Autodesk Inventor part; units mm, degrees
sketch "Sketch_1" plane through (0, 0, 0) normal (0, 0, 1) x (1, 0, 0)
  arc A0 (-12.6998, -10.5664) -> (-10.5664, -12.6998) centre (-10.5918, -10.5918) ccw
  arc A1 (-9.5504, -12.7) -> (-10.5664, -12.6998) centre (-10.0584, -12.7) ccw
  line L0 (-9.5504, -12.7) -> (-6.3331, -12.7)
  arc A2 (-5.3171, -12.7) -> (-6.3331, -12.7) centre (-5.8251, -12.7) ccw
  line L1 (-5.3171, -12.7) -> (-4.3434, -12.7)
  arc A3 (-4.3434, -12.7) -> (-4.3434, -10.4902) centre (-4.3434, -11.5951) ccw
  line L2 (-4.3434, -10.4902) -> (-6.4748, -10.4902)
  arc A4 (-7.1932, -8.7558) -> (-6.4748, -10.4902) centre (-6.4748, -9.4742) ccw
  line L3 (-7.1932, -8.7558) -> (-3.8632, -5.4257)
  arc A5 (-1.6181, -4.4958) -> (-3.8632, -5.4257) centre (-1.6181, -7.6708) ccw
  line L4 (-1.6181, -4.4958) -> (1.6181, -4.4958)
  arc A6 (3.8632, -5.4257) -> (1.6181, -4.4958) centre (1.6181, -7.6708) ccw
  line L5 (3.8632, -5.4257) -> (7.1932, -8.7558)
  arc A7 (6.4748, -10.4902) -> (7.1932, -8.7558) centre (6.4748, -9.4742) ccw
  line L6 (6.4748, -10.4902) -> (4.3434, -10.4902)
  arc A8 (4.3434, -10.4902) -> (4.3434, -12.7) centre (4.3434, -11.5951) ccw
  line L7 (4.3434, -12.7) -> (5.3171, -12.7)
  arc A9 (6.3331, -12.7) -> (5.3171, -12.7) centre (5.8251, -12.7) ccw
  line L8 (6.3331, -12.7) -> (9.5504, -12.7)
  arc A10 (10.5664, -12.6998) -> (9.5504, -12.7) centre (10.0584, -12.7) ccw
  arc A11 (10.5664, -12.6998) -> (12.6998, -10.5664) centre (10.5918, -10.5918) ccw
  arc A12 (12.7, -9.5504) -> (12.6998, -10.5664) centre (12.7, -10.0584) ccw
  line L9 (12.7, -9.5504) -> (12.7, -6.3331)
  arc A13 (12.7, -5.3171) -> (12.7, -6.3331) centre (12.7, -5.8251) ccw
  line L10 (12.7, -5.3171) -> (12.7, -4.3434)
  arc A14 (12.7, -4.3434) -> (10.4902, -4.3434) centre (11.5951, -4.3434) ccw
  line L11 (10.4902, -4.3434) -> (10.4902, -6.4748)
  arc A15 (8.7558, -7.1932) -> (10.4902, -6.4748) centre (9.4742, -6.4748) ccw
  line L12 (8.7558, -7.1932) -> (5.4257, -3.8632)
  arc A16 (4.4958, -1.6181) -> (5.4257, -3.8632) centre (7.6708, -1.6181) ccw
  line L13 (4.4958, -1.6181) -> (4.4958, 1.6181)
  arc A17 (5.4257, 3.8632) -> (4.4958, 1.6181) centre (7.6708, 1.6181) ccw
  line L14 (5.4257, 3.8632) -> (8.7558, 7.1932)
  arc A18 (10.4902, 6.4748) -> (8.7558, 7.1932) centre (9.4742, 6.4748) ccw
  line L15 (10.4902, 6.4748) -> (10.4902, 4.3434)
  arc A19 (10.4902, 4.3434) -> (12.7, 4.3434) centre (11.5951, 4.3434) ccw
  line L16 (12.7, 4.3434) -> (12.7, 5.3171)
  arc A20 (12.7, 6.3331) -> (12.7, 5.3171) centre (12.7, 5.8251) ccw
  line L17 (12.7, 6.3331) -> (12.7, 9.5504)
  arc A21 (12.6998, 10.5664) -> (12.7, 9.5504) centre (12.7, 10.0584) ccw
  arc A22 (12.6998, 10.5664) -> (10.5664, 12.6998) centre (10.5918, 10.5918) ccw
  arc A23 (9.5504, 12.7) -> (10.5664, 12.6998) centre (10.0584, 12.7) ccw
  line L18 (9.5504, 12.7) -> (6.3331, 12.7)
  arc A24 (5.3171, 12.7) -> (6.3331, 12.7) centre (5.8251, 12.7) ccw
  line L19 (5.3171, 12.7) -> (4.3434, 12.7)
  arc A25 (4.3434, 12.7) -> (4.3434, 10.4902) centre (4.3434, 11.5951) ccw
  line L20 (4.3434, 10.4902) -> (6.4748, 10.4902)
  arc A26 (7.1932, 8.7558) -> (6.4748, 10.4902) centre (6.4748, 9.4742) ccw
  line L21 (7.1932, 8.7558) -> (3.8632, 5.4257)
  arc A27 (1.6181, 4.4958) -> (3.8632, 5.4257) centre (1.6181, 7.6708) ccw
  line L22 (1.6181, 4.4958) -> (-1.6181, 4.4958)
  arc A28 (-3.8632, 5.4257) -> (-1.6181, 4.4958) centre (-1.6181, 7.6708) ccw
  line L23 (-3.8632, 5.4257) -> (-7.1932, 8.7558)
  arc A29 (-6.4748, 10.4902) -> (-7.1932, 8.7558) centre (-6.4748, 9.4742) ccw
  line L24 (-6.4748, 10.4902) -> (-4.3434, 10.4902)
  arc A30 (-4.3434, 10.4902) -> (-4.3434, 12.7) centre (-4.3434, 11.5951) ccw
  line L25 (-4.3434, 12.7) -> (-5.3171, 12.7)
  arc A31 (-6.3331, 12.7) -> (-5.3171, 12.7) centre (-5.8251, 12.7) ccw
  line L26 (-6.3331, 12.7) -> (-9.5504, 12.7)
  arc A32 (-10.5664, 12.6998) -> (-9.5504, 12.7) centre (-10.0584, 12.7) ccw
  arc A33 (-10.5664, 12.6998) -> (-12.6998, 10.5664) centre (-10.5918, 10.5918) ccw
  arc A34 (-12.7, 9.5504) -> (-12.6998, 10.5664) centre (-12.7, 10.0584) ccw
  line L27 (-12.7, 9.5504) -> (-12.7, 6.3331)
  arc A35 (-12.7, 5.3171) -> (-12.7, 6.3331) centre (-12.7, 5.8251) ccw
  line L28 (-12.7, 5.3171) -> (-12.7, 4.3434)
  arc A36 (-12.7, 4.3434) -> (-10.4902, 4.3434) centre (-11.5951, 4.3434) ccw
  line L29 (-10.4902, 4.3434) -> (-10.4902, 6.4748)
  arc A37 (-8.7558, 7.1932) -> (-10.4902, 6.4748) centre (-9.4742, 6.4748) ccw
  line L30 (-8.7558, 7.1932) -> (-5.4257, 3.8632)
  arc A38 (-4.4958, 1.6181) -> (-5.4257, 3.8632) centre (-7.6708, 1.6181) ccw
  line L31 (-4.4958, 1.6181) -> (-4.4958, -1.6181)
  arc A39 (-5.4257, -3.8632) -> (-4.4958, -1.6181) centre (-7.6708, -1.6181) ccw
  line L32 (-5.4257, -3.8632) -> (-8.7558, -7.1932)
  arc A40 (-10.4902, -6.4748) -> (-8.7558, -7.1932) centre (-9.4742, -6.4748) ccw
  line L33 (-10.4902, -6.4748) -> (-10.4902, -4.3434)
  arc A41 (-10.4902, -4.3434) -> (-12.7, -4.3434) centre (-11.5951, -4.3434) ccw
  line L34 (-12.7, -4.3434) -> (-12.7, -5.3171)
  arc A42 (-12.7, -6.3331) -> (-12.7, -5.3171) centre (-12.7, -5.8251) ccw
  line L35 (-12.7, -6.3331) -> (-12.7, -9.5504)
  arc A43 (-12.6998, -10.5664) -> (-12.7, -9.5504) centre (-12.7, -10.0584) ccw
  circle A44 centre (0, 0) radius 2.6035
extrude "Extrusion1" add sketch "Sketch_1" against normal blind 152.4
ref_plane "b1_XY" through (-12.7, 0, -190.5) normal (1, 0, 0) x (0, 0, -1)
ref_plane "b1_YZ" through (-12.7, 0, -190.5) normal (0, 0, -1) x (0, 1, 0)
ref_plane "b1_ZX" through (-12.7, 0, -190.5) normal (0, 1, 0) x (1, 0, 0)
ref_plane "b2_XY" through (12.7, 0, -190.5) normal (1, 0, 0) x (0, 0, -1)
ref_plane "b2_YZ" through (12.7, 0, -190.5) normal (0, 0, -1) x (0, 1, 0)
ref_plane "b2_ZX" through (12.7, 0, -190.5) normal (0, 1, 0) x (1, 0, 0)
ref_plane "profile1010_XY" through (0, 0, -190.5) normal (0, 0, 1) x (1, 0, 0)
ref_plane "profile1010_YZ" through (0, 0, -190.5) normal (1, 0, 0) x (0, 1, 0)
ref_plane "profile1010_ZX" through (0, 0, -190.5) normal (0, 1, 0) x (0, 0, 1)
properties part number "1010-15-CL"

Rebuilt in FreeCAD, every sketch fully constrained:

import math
import FreeCAD as App
import Part
import Sketcher
Q = App.Units.Quantity

doc = App.newDocument("Part")
body = doc.addObject("PartDesign::Body", "Body")

# Sketch on XY plane
sketch1 = body.newObject("Sketcher::SketchObject", "Sketch")
sketch1.AttachmentSupport = (doc.getObject("XY_Plane"), [""])
sketch1.MapMode = "FlatFace"
sketch1.addGeometry([
    Part.ArcOfCircle(Part.Circle(App.Vector(-12.7, -10.1, 0), App.Vector(0, 0, 1), 0.5), math.radians(-90), math.radians(90)),  # 0
    Part.ArcOfCircle(Part.Circle(App.Vector(-10.6, -10.6, 0), App.Vector(0, 0, 1), 2.1), math.radians(179), math.radians(271)),  # 1
    Part.ArcOfCircle(Part.Circle(App.Vector(-10.1, -12.7, 0), App.Vector(0, 0, 1), 0.5), math.radians(0), math.radians(180)),  # 2
    Part.LineSegment(App.Vector(-9.6, -12.7, 0), App.Vector(-6.3, -12.7, 0)),  # 3
    Part.ArcOfCircle(Part.Circle(App.Vector(-5.8, -12.7, 0), App.Vector(0, 0, 1), 0.5), math.radians(0), math.radians(180)),  # 4
    Part.LineSegment(App.Vector(-5.3, -12.7, 0), App.Vector(-4.3, -12.7, 0)),  # 5
    Part.ArcOfCircle(Part.Circle(App.Vector(-4.3, -11.6, 0), App.Vector(0, 0, 1), 1.1), math.radians(-90), math.radians(90)),  # 6
    Part.LineSegment(App.Vector(-4.3, -10.5, 0), App.Vector(-6.5, -10.5, 0)),  # 7
    Part.ArcOfCircle(Part.Circle(App.Vector(-6.5, -9.5, 0), App.Vector(0, 0, 1), 1), math.radians(135), math.radians(270)),  # 8
    Part.LineSegment(App.Vector(-7.2, -8.8, 0), App.Vector(-3.9, -5.4, 0)),  # 9
    Part.ArcOfCircle(Part.Circle(App.Vector(-1.6, -7.7, 0), App.Vector(0, 0, 1), 3.2), math.radians(90), math.radians(135)),  # 10
    Part.LineSegment(App.Vector(-1.6, -4.5, 0), App.Vector(1.6, -4.5, 0)),  # 11
    Part.ArcOfCircle(Part.Circle(App.Vector(1.6, -7.7, 0), App.Vector(0, 0, 1), 3.2), math.radians(45), math.radians(90)),  # 12
    Part.LineSegment(App.Vector(3.9, -5.4, 0), App.Vector(7.2, -8.8, 0)),  # 13
    Part.ArcOfCircle(Part.Circle(App.Vector(6.5, -9.5, 0), App.Vector(0, 0, 1), 1), math.radians(-90), math.radians(45)),  # 14
    Part.LineSegment(App.Vector(6.5, -10.5, 0), App.Vector(4.3, -10.5, 0)),  # 15
    Part.ArcOfCircle(Part.Circle(App.Vector(4.3, -11.6, 0), App.Vector(0, 0, 1), 1.1), math.radians(90), math.radians(270)),  # 16
    Part.LineSegment(App.Vector(4.3, -12.7, 0), App.Vector(5.3, -12.7, 0)),  # 17
    Part.ArcOfCircle(Part.Circle(App.Vector(5.8, -12.7, 0), App.Vector(0, 0, 1), 0.5), math.radians(0), math.radians(180)),  # 18
    Part.LineSegment(App.Vector(6.3, -12.7, 0), App.Vector(9.6, -12.7, 0)),  # 19
    Part.ArcOfCircle(Part.Circle(App.Vector(10.1, -12.7, 0), App.Vector(0, 0, 1), 0.5), math.radians(0), math.radians(180)),  # 20
    Part.ArcOfCircle(Part.Circle(App.Vector(10.6, -10.6, 0), App.Vector(0, 0, 1), 2.1), math.radians(-91), math.radians(1)),  # 21
    Part.ArcOfCircle(Part.Circle(App.Vector(12.7, -10.1, 0), App.Vector(0, 0, 1), 0.5), math.radians(90), math.radians(270)),  # 22
    Part.LineSegment(App.Vector(12.7, -9.6, 0), App.Vector(12.7, -6.3, 0)),  # 23
    Part.ArcOfCircle(Part.Circle(App.Vector(12.7, -5.8, 0), App.Vector(0, 0, 1), 0.5), math.radians(90), math.radians(270)),  # 24
    Part.LineSegment(App.Vector(12.7, -5.3, 0), App.Vector(12.7, -4.3, 0)),  # 25
    Part.ArcOfCircle(Part.Circle(App.Vector(11.6, -4.3, 0), App.Vector(0, 0, 1), 1.1), math.radians(0), math.radians(180)),  # 26
    Part.LineSegment(App.Vector(10.5, -4.3, 0), App.Vector(10.5, -6.5, 0)),  # 27
    Part.ArcOfCircle(Part.Circle(App.Vector(9.5, -6.5, 0), App.Vector(0, 0, 1), 1), math.radians(-135), math.radians(0)),  # 28
    Part.LineSegment(App.Vector(8.8, -7.2, 0), App.Vector(5.4, -3.9, 0)),  # 29
    Part.ArcOfCircle(Part.Circle(App.Vector(7.7, -1.6, 0), App.Vector(0, 0, 1), 3.2), math.radians(180), math.radians(225)),  # 30
    Part.LineSegment(App.Vector(4.5, -1.6, 0), App.Vector(4.5, 1.6, 0)),  # 31
    Part.ArcOfCircle(Part.Circle(App.Vector(7.7, 1.6, 0), App.Vector(0, 0, 1), 3.2), math.radians(135), math.radians(180)),  # 32
    Part.LineSegment(App.Vector(5.4, 3.9, 0), App.Vector(8.8, 7.2, 0)),  # 33
    Part.ArcOfCircle(Part.Circle(App.Vector(9.5, 6.5, 0), App.Vector(0, 0, 1), 1), math.radians(0), math.radians(135)),  # 34
    Part.LineSegment(App.Vector(10.5, 6.5, 0), App.Vector(10.5, 4.3, 0)),  # 35
    Part.ArcOfCircle(Part.Circle(App.Vector(11.6, 4.3, 0), App.Vector(0, 0, 1), 1.1), math.radians(180), math.radians(360)),  # 36
    Part.LineSegment(App.Vector(12.7, 4.3, 0), App.Vector(12.7, 5.3, 0)),  # 37
    Part.ArcOfCircle(Part.Circle(App.Vector(12.7, 5.8, 0), App.Vector(0, 0, 1), 0.5), math.radians(90), math.radians(270)),  # 38
    Part.LineSegment(App.Vector(12.7, 6.3, 0), App.Vector(12.7, 9.6, 0)),  # 39
    Part.ArcOfCircle(Part.Circle(App.Vector(12.7, 10.1, 0), App.Vector(0, 0, 1), 0.5), math.radians(90), math.radians(270)),  # 40
    Part.ArcOfCircle(Part.Circle(App.Vector(10.6, 10.6, 0), App.Vector(0, 0, 1), 2.1), math.radians(-1), math.radians(91)),  # 41
    Part.ArcOfCircle(Part.Circle(App.Vector(10.1, 12.7, 0), App.Vector(0, 0, 1), 0.5), math.radians(180), math.radians(360)),  # 42
    Part.LineSegment(App.Vector(9.6, 12.7, 0), App.Vector(6.3, 12.7, 0)),  # 43
    Part.ArcOfCircle(Part.Circle(App.Vector(5.8, 12.7, 0), App.Vector(0, 0, 1), 0.5), math.radians(180), math.radians(360)),  # 44
    Part.LineSegment(App.Vector(5.3, 12.7, 0), App.Vector(4.3, 12.7, 0)),  # 45
    Part.ArcOfCircle(Part.Circle(App.Vector(4.3, 11.6, 0), App.Vector(0, 0, 1), 1.1), math.radians(90), math.radians(270)),  # 46
    Part.LineSegment(App.Vector(4.3, 10.5, 0), App.Vector(6.5, 10.5, 0)),  # 47
    Part.ArcOfCircle(Part.Circle(App.Vector(6.5, 9.5, 0), App.Vector(0, 0, 1), 1), math.radians(-45), math.radians(90)),  # 48
    Part.LineSegment(App.Vector(7.2, 8.8, 0), App.Vector(3.9, 5.4, 0)),  # 49
    Part.ArcOfCircle(Part.Circle(App.Vector(1.6, 7.7, 0), App.Vector(0, 0, 1), 3.2), math.radians(-90), math.radians(-45)),  # 50
    Part.LineSegment(App.Vector(1.6, 4.5, 0), App.Vector(-1.6, 4.5, 0)),  # 51
    Part.ArcOfCircle(Part.Circle(App.Vector(-1.6, 7.7, 0), App.Vector(0, 0, 1), 3.2), math.radians(-135), math.radians(-90)),  # 52
    Part.LineSegment(App.Vector(-3.9, 5.4, 0), App.Vector(-7.2, 8.8, 0)),  # 53
    Part.ArcOfCircle(Part.Circle(App.Vector(-6.5, 9.5, 0), App.Vector(0, 0, 1), 1), math.radians(90), math.radians(225)),  # 54
    Part.LineSegment(App.Vector(-6.5, 10.5, 0), App.Vector(-4.3, 10.5, 0)),  # 55
    Part.ArcOfCircle(Part.Circle(App.Vector(-4.3, 11.6, 0), App.Vector(0, 0, 1), 1.1), math.radians(-90), math.radians(90)),  # 56
    Part.LineSegment(App.Vector(-4.3, 12.7, 0), App.Vector(-5.3, 12.7, 0)),  # 57
    Part.ArcOfCircle(Part.Circle(App.Vector(-5.8, 12.7, 0), App.Vector(0, 0, 1), 0.5), math.radians(180), math.radians(360)),  # 58
    Part.LineSegment(App.Vector(-6.3, 12.7, 0), App.Vector(-9.6, 12.7, 0)),  # 59
    Part.ArcOfCircle(Part.Circle(App.Vector(-10.1, 12.7, 0), App.Vector(0, 0, 1), 0.5), math.radians(-180), math.radians(0)),  # 60
    Part.ArcOfCircle(Part.Circle(App.Vector(-10.6, 10.6, 0), App.Vector(0, 0, 1), 2.1), math.radians(89), math.radians(181)),  # 61
    Part.ArcOfCircle(Part.Circle(App.Vector(-12.7, 10.1, 0), App.Vector(0, 0, 1), 0.5), math.radians(-90), math.radians(90)),  # 62
    Part.LineSegment(App.Vector(-12.7, 9.6, 0), App.Vector(-12.7, 6.3, 0)),  # 63
    Part.ArcOfCircle(Part.Circle(App.Vector(-12.7, 5.8, 0), App.Vector(0, 0, 1), 0.5), math.radians(-90), math.radians(90)),  # 64
    Part.LineSegment(App.Vector(-12.7, 5.3, 0), App.Vector(-12.7, 4.3, 0)),  # 65
    Part.ArcOfCircle(Part.Circle(App.Vector(-11.6, 4.3, 0), App.Vector(0, 0, 1), 1.1), math.radians(180), math.radians(360)),  # 66
    Part.LineSegment(App.Vector(-10.5, 4.3, 0), App.Vector(-10.5, 6.5, 0)),  # 67
    Part.ArcOfCircle(Part.Circle(App.Vector(-9.5, 6.5, 0), App.Vector(0, 0, 1), 1), math.radians(45), math.radians(180)),  # 68
    Part.LineSegment(App.Vector(-8.8, 7.2, 0), App.Vector(-5.4, 3.9, 0)),  # 69
    Part.ArcOfCircle(Part.Circle(App.Vector(-7.7, 1.6, 0), App.Vector(0, 0, 1), 3.2), math.radians(0), math.radians(45)),  # 70
    Part.LineSegment(App.Vector(-4.5, 1.6, 0), App.Vector(-4.5, -1.6, 0)),  # 71
    Part.ArcOfCircle(Part.Circle(App.Vector(-7.7, -1.6, 0), App.Vector(0, 0, 1), 3.2), math.radians(-45), math.radians(0)),  # 72
    Part.LineSegment(App.Vector(-5.4, -3.9, 0), App.Vector(-8.8, -7.2, 0)),  # 73
    Part.ArcOfCircle(Part.Circle(App.Vector(-9.5, -6.5, 0), App.Vector(0, 0, 1), 1), math.radians(180), math.radians(315)),  # 74
    Part.LineSegment(App.Vector(-10.5, -6.5, 0), App.Vector(-10.5, -4.3, 0)),  # 75
    Part.ArcOfCircle(Part.Circle(App.Vector(-11.6, -4.3, 0), App.Vector(0, 0, 1), 1.1), math.radians(0), math.radians(180)),  # 76
    Part.LineSegment(App.Vector(-12.7, -4.3, 0), App.Vector(-12.7, -5.3, 0)),  # 77
    Part.ArcOfCircle(Part.Circle(App.Vector(-12.7, -5.8, 0), App.Vector(0, 0, 1), 0.5), math.radians(-90), math.radians(90)),  # 78
    Part.LineSegment(App.Vector(-12.7, -6.3, 0), App.Vector(-12.7, -9.6, 0)),  # 79
    Part.Circle(App.Vector(0, 0, 0), App.Vector(0, 0, 1), 2.6),  # 80
], False)
sketch1.addConstraint([
    Sketcher.Constraint("Coincident", 0, 1, 1, 1),
    Sketcher.Constraint("Coincident", 1, 2, 2, 2),
    Sketcher.Constraint("Coincident", 2, 1, 3, 1),
    Sketcher.Constraint("Coincident", 3, 2, 4, 2),
    Sketcher.Constraint("Coincident", 4, 1, 5, 1),
    Sketcher.Constraint("Tangent", 5, 2, 6, 1),
    Sketcher.Constraint("Tangent", 6, 2, 7, 1),
    Sketcher.Constraint("Tangent", 7, 2, 8, 2),
    Sketcher.Constraint("Tangent", 8, 1, 9, 1),
    Sketcher.Constraint("Tangent", 9, 2, 10, 2),
    Sketcher.Constraint("Tangent", 10, 1, 11, 1),
    Sketcher.Constraint("Tangent", 11, 2, 12, 2),
    Sketcher.Constraint("Tangent", 12, 1, 13, 1),
    Sketcher.Constraint("Tangent", 13, 2, 14, 2),
    Sketcher.Constraint("Tangent", 14, 1, 15, 1),
    Sketcher.Constraint("Tangent", 15, 2, 16, 1),
    Sketcher.Constraint("Tangent", 16, 2, 17, 1),
    Sketcher.Constraint("Coincident", 17, 2, 18, 2),
    Sketcher.Constraint("Coincident", 18, 1, 19, 1),
    Sketcher.Constraint("Coincident", 19, 2, 20, 2),
    Sketcher.Constraint("Coincident", 20, 1, 21, 1),
    Sketcher.Constraint("Coincident", 21, 2, 22, 2),
    Sketcher.Constraint("Coincident", 22, 1, 23, 1),
    Sketcher.Constraint("Coincident", 23, 2, 24, 2),
    Sketcher.Constraint("Coincident", 24, 1, 25, 1),
    Sketcher.Constraint("Tangent", 25, 2, 26, 1),
    Sketcher.Constraint("Tangent", 26, 2, 27, 1),
    Sketcher.Constraint("Tangent", 27, 2, 28, 2),
    Sketcher.Constraint("Tangent", 28, 1, 29, 1),
    Sketcher.Constraint("Tangent", 29, 2, 30, 2),
    Sketcher.Constraint("Tangent", 30, 1, 31, 1),
    Sketcher.Constraint("Tangent", 31, 2, 32, 2),
    Sketcher.Constraint("Tangent", 32, 1, 33, 1),
    Sketcher.Constraint("Tangent", 33, 2, 34, 2),
    Sketcher.Constraint("Tangent", 34, 1, 35, 1),
    Sketcher.Constraint("Tangent", 35, 2, 36, 1),
    Sketcher.Constraint("Tangent", 36, 2, 37, 1),
    Sketcher.Constraint("Coincident", 37, 2, 38, 2),
    Sketcher.Constraint("Coincident", 38, 1, 39, 1),
    Sketcher.Constraint("Coincident", 39, 2, 40, 2),
    Sketcher.Constraint("Coincident", 40, 1, 41, 1),
    Sketcher.Constraint("Coincident", 41, 2, 42, 2),
    Sketcher.Constraint("Coincident", 42, 1, 43, 1),
    Sketcher.Constraint("Coincident", 43, 2, 44, 2),
    Sketcher.Constraint("Coincident", 44, 1, 45, 1),
    Sketcher.Constraint("Tangent", 45, 2, 46, 1),
    Sketcher.Constraint("Tangent", 46, 2, 47, 1),
    Sketcher.Constraint("Tangent", 47, 2, 48, 2),
    Sketcher.Constraint("Tangent", 48, 1, 49, 1),
    Sketcher.Constraint("Tangent", 49, 2, 50, 2),
    Sketcher.Constraint("Tangent", 50, 1, 51, 1),
    Sketcher.Constraint("Tangent", 51, 2, 52, 2),
    Sketcher.Constraint("Tangent", 52, 1, 53, 1),
    Sketcher.Constraint("Tangent", 53, 2, 54, 2),
    Sketcher.Constraint("Tangent", 54, 1, 55, 1),
    Sketcher.Constraint("Tangent", 55, 2, 56, 1),
    Sketcher.Constraint("Tangent", 56, 2, 57, 1),
    Sketcher.Constraint("Coincident", 57, 2, 58, 2),
    Sketcher.Constraint("Coincident", 58, 1, 59, 1),
    Sketcher.Constraint("Coincident", 59, 2, 60, 2),
    Sketcher.Constraint("Coincident", 60, 1, 61, 1),
    Sketcher.Constraint("Coincident", 61, 2, 62, 2),
    Sketcher.Constraint("Coincident", 62, 1, 63, 1),
    Sketcher.Constraint("Coincident", 63, 2, 64, 2),
    Sketcher.Constraint("Coincident", 64, 1, 65, 1),
    Sketcher.Constraint("Tangent", 65, 2, 66, 1),
    Sketcher.Constraint("Tangent", 66, 2, 67, 1),
    Sketcher.Constraint("Tangent", 67, 2, 68, 2),
    Sketcher.Constraint("Tangent", 68, 1, 69, 1),
    Sketcher.Constraint("Tangent", 69, 2, 70, 2),
    Sketcher.Constraint("Tangent", 70, 1, 71, 1),
    Sketcher.Constraint("Tangent", 71, 2, 72, 2),
    Sketcher.Constraint("Tangent", 72, 1, 73, 1),
    Sketcher.Constraint("Tangent", 73, 2, 74, 2),
    Sketcher.Constraint("Tangent", 74, 1, 75, 1),
    Sketcher.Constraint("Tangent", 75, 2, 76, 1),
    Sketcher.Constraint("Tangent", 76, 2, 77, 1),
    Sketcher.Constraint("Coincident", 77, 2, 78, 2),
    Sketcher.Constraint("Coincident", 78, 1, 79, 1),
    Sketcher.Constraint("Coincident", 79, 2, 0, 2),
    Sketcher.Constraint("Horizontal", 3),
    Sketcher.Constraint("Horizontal", 5),
    Sketcher.Constraint("Horizontal", 7),
    Sketcher.Constraint("Horizontal", 11),
    Sketcher.Constraint("Horizontal", 15),
    Sketcher.Constraint("Horizontal", 17),
    Sketcher.Constraint("Horizontal", 19),
    Sketcher.Constraint("Vertical", 23),
    Sketcher.Constraint("Vertical", 25),
    Sketcher.Constraint("Vertical", 27),
    Sketcher.Constraint("Vertical", 31),
    Sketcher.Constraint("Vertical", 35),
    Sketcher.Constraint("Vertical", 37),
    Sketcher.Constraint("Vertical", 39),
    Sketcher.Constraint("Horizontal", 43),
    Sketcher.Constraint("Horizontal", 45),
    Sketcher.Constraint("Horizontal", 47),
    Sketcher.Constraint("Horizontal", 51),
    Sketcher.Constraint("Horizontal", 55),
    Sketcher.Constraint("Horizontal", 57),
    Sketcher.Constraint("Horizontal", 59),
    Sketcher.Constraint("Vertical", 63),
    Sketcher.Constraint("Vertical", 65),
    Sketcher.Constraint("Vertical", 67),
    Sketcher.Constraint("Vertical", 71),
    Sketcher.Constraint("Vertical", 75),
    Sketcher.Constraint("Vertical", 77),
    Sketcher.Constraint("Vertical", 79),
    Sketcher.Constraint("Coincident", 80, 3, -1, 1),
    Sketcher.Constraint("Equal", 0, 2),
    Sketcher.Constraint("Equal", 2, 4),
    Sketcher.Constraint("Equal", 10, 12),
    Sketcher.Constraint("Equal", 8, 14),
    Sketcher.Constraint("Equal", 6, 16),
    Sketcher.Constraint("Equal", 4, 18),
    Sketcher.Constraint("Equal", 18, 20),
    Sketcher.Constraint("Equal", 1, 21),
    Sketcher.Constraint("Equal", 20, 22),
    Sketcher.Constraint("Equal", 22, 24),
    Sketcher.Constraint("Equal", 16, 26),
    Sketcher.Constraint("Equal", 14, 28),
    Sketcher.Constraint("Equal", 12, 30),
    Sketcher.Constraint("Equal", 30, 32),
    Sketcher.Constraint("Equal", 28, 34),
    Sketcher.Constraint("Equal", 26, 36),
    Sketcher.Constraint("Equal", 24, 38),
    Sketcher.Constraint("Equal", 38, 40),
    Sketcher.Constraint("Equal", 21, 41),
    Sketcher.Constraint("Equal", 40, 42),
    Sketcher.Constraint("Equal", 42, 44),
    Sketcher.Constraint("Equal", 36, 46),
    Sketcher.Constraint("Equal", 34, 48),
    Sketcher.Constraint("Equal", 32, 50),
    Sketcher.Constraint("Equal", 50, 52),
    Sketcher.Constraint("Equal", 48, 54),
    Sketcher.Constraint("Equal", 46, 56),
    Sketcher.Constraint("Equal", 44, 58),
    Sketcher.Constraint("Equal", 58, 60),
    Sketcher.Constraint("Equal", 41, 61),
    Sketcher.Constraint("Equal", 60, 62),
    Sketcher.Constraint("Equal", 62, 64),
    Sketcher.Constraint("Equal", 56, 66),
    Sketcher.Constraint("Equal", 54, 68),
    Sketcher.Constraint("Equal", 52, 70),
    Sketcher.Constraint("Equal", 70, 72),
    Sketcher.Constraint("Equal", 68, 74),
    Sketcher.Constraint("Equal", 66, 76),
    Sketcher.Constraint("Equal", 64, 78),
    Sketcher.Constraint("Symmetric", 0, 3, 40, 3, -1, 1),
    Sketcher.Constraint("Symmetric", 1, 3, 41, 3, -1, 1),
    Sketcher.Constraint("Symmetric", 2, 3, 42, 3, -1, 1),
    Sketcher.Constraint("Symmetric", 4, 3, 44, 3, -1, 1),
    Sketcher.Constraint("Symmetric", 6, 3, 46, 3, -1, 1),
    Sketcher.Constraint("Symmetric", 10, 3, 50, 3, -1, 1),
    Sketcher.Constraint("Symmetric", 14, 3, 54, 3, -1, 1),
    Sketcher.Constraint("Symmetric", 18, 3, 58, 3, -1, 1),
    Sketcher.Constraint("Symmetric", 20, 3, 60, 3, -1, 1),
    Sketcher.Constraint("Symmetric", 21, 3, 61, 3, -1, 1),
    Sketcher.Constraint("Symmetric", 22, 3, 62, 3, -1, 1),
    Sketcher.Constraint("Symmetric", 24, 3, 64, 3, -1, 1),
    Sketcher.Constraint("Symmetric", 26, 3, 66, 3, -1, 1),
    Sketcher.Constraint("Symmetric", 30, 3, 70, 3, -1, 1),
    Sketcher.Constraint("Symmetric", 34, 3, 74, 3, -1, 1),
    Sketcher.Constraint("Symmetric", 38, 3, 78, 3, -1, 1),
    Sketcher.Constraint("Symmetric", 8, 3, 14, 3, -2),
    Sketcher.Constraint("Symmetric", 4, 3, 18, 3, -2),
    Sketcher.Constraint("Symmetric", 2, 3, 20, 3, -2),
    Sketcher.Constraint("Symmetric", 1, 3, 21, 3, -2),
    Sketcher.Constraint("Symmetric", 0, 3, 22, 3, -2),
    Sketcher.Constraint("Symmetric", 38, 3, 64, 3, -2),
    Sketcher.Constraint("Symmetric", 36, 3, 66, 3, -2),
    Sketcher.Constraint("Symmetric", 49, 2, 52, 1, -2),
    Sketcher.Constraint("Symmetric", 33, 2, 68, 1, -2),
    Sketcher.Constraint("Symmetric", 29, 2, 72, 1, -2),
    Sketcher.Constraint("Perpendicular", 9, 13),
    Sketcher.Constraint("Parallel", 13, 29),
    Sketcher.Constraint("Perpendicular", 29, 33),
    Sketcher.Constraint("Horizontal", 2, 3, 4, 3),
    Sketcher.Constraint("Horizontal", 26, 3, 76, 3),
    Sketcher.Constraint("Horizontal", 20, 3, 1, 2),
    Sketcher.Constraint("Horizontal", 1, 2, 2, 1),
    Sketcher.Constraint("Horizontal", 3, 2, 4, 1),
    Sketcher.Constraint("Horizontal", 17, 2, 18, 1),
    Sketcher.Constraint("Horizontal", 41, 2, 42, 1),
    Sketcher.Constraint("Horizontal", 57, 2, 58, 1),
    Sketcher.Constraint("Vertical", 22, 3, 24, 3),
    Sketcher.Constraint("Vertical", 16, 3, 46, 3),
    Sketcher.Constraint("Vertical", 6, 3, 56, 3),
    Sketcher.Constraint("Vertical", 78, 3, 0, 1),
    Sketcher.Constraint("Vertical", 21, 2, 22, 1),
    Sketcher.Constraint("Vertical", 23, 2, 24, 1),
    Sketcher.Constraint("Vertical", 37, 2, 38, 1),
    Sketcher.Constraint("Vertical", 61, 2, 62, 1),
    Sketcher.Constraint("Vertical", 77, 2, 78, 1),
    Sketcher.Constraint("Equal", 59, 23),
    Sketcher.Constraint("Equal", 57, 25),
    Sketcher.Constraint("Equal", 55, 27),
    Sketcher.Constraint("Equal", 51, 31),
    Sketcher.Constraint("Equal", 13, 29),
    Sketcher.Constraint("Radius", 0, Q("0.02 in")),
    Sketcher.Constraint("Radius", 8, Q("0.04 in")),
    Sketcher.Constraint("Diameter", 80, Q("0.205 in")),
    Sketcher.Constraint("Radius", 1, Q("0.083 in")),
    Sketcher.Constraint("Radius", 10, Q("0.125 in")),
    Sketcher.Constraint("DistanceX", 0, 3, -1, 1, Q("0.5 in")),
    Sketcher.Constraint("DistanceY", 2, 3, -1, 1, Q("0.5 in")),
    Sketcher.Constraint("Radius", 6, Q("0.0435 in")),
    Sketcher.Constraint("DistanceX", 11, 1, 11, 2, Q("0.1274 in")),
    Sketcher.Constraint("DistanceY", 0, 3, -1, 1, Q("0.396 in")),
    Sketcher.Constraint("DistanceX", 6, 3, -1, 1, Q("0.171 in")),
    Sketcher.Constraint("DistanceY", 10, 3, -1, 1, Q("0.302 in")),
    Sketcher.Constraint("DistanceX", 3, 1, 3, 2, Q("3.2173 mm")),
])
pad1 = body.newObject("PartDesign::Pad", "Pad")
pad1.Profile = sketch1
pad1.Length = Q("6 in")
pad1.Reversed = True

doc.recompute()
